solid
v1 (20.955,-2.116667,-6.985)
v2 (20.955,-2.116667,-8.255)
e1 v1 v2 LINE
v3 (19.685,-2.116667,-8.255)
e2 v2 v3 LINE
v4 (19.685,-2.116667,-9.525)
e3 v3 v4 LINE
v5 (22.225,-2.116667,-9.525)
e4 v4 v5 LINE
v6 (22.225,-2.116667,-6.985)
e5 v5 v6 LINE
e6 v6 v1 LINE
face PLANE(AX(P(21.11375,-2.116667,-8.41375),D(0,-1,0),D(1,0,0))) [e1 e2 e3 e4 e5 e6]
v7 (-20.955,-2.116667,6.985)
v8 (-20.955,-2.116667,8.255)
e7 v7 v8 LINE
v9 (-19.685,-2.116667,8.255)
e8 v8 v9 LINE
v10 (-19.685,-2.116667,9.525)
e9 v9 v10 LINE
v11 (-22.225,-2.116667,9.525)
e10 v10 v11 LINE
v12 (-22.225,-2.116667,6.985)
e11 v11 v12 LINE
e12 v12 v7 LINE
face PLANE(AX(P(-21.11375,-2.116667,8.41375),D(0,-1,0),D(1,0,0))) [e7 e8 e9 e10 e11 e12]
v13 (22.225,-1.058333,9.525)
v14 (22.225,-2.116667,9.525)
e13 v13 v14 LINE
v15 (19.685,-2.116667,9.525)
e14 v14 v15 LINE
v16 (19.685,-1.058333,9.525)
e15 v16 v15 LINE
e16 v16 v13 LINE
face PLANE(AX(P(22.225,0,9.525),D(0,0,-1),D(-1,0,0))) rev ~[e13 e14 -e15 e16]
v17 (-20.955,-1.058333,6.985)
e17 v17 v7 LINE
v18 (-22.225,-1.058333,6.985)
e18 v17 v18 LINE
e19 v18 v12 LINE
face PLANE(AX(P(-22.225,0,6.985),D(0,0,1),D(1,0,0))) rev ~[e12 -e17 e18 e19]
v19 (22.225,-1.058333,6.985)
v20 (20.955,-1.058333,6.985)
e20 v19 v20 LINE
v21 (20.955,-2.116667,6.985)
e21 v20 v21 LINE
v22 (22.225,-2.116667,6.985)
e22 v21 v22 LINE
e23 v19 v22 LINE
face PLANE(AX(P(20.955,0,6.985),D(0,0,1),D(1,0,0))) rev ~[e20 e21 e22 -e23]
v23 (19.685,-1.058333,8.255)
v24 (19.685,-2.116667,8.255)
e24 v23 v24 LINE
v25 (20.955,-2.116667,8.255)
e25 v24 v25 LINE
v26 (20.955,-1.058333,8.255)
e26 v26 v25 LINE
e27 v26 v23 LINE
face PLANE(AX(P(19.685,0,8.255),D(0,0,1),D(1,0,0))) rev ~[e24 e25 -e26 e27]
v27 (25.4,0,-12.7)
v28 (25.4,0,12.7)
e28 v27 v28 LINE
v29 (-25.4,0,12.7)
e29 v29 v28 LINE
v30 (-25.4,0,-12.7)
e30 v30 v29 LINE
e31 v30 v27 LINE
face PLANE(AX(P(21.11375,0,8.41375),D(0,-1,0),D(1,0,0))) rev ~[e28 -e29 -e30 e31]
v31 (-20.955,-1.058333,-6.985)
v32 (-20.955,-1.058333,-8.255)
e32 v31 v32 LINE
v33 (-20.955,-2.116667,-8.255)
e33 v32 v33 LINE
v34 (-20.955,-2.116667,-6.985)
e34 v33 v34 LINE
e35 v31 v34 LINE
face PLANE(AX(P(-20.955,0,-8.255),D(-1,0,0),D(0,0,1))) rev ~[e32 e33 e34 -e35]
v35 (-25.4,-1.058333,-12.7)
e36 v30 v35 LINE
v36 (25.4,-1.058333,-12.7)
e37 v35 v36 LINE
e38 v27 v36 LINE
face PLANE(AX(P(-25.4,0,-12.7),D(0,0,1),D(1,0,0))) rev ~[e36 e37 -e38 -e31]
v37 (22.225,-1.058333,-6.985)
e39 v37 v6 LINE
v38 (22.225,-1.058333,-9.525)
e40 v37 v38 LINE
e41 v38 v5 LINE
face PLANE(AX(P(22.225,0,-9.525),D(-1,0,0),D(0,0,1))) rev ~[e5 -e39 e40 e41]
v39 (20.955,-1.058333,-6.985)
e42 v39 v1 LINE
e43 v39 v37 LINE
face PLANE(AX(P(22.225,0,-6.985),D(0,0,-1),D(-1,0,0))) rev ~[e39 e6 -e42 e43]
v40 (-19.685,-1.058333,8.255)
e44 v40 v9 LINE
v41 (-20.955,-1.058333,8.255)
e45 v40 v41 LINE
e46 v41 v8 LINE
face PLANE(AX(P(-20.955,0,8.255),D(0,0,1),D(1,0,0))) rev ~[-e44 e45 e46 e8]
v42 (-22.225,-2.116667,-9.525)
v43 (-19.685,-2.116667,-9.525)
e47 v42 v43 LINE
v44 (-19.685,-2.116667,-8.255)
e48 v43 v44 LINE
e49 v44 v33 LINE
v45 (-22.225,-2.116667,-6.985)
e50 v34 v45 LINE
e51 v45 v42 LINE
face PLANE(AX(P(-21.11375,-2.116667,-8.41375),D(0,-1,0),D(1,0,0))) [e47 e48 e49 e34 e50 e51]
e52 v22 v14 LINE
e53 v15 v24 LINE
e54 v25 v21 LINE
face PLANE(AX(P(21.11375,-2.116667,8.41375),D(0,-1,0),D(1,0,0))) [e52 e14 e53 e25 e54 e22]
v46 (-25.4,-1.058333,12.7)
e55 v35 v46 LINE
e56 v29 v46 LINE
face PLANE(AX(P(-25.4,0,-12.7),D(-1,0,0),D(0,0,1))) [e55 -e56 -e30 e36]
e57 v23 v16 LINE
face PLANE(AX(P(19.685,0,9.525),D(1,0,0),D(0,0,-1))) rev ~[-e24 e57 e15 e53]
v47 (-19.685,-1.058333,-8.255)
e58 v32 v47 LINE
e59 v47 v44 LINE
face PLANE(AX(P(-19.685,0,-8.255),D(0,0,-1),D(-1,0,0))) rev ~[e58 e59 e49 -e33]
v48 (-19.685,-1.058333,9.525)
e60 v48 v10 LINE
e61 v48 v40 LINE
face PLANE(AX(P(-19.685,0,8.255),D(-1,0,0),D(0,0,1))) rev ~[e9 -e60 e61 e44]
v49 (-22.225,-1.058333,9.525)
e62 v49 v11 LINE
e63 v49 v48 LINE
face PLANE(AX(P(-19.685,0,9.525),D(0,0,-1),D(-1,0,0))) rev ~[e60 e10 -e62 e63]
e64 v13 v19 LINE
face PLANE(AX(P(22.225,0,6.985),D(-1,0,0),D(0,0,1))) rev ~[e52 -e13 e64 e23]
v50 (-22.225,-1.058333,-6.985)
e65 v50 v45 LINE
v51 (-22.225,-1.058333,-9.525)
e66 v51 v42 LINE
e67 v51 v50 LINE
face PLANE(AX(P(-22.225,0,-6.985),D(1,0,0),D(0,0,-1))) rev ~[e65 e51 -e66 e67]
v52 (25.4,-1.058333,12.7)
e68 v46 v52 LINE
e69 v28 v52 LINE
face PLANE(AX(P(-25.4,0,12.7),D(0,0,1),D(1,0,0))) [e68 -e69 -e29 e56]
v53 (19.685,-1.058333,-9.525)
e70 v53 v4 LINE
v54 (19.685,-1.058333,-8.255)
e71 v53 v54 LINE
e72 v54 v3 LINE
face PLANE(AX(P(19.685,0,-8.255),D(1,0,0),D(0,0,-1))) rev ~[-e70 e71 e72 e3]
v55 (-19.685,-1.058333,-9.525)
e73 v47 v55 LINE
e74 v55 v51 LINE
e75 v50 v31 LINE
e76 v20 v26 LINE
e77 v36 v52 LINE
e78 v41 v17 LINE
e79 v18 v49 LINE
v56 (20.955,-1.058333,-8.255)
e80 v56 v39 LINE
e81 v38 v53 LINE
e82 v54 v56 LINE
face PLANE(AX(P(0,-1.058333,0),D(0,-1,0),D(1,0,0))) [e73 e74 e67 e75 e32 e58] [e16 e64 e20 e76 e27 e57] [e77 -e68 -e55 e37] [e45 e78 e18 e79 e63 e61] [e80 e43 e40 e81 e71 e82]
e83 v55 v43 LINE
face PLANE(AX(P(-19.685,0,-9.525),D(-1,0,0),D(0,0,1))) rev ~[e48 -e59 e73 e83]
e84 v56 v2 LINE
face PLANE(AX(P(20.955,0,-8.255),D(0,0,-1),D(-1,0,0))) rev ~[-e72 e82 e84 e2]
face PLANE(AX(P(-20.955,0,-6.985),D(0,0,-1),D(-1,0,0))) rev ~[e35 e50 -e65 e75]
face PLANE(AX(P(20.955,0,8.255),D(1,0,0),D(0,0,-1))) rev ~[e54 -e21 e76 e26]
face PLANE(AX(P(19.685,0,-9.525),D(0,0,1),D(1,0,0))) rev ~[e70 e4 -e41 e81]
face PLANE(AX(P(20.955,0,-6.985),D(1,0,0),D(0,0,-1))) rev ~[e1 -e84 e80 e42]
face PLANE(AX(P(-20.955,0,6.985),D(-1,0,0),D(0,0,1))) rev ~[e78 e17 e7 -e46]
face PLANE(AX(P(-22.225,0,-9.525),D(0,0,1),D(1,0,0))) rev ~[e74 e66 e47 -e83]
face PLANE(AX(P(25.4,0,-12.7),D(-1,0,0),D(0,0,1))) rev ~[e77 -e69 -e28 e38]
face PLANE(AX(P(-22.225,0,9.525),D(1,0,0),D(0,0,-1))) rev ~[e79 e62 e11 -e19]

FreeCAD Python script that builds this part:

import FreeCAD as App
import Part
import Sketcher
from FreeCAD import Vector
Q = App.Units.Quantity

doc = App.newDocument("Part")
params = doc.addObject("Spreadsheet::Sheet", "Params")
for row, (alias, value) in enumerate([
    ("sketch1_width", "2 in"),
    ("sketch1_height", "1 in"),
    ("pad1_length", "1.058333 mm"),
    ("sketch2_width", "0.1 in"),
    ("pad2_length", "2.116667 mm"),
], start=1):
    params.set(f"A{row}", alias)
    params.set(f"B{row}", "=" + value)
    params.setAlias(f"B{row}", alias)

body = doc.addObject("PartDesign::Body", "Body")

sketch1 = body.newObject("Sketcher::SketchObject", "Sketch")
sketch1.AttachmentSupport = (doc.getObject("XZ_Plane"), [""])
sketch1.MapMode = "FlatFace"
sketch1.addGeometry([
    Part.LineSegment(Vector(-25.4, 12.7, 0), Vector(-25.4, -12.7, 0)),
    Part.LineSegment(Vector(-25.4, -12.7, 0), Vector(25.4, -12.7, 0)),
    Part.LineSegment(Vector(25.4, -12.7, 0), Vector(25.4, 12.7, 0)),
    Part.LineSegment(Vector(25.4, 12.7, 0), Vector(-25.4, 12.7, 0)),
], False)
sketch1.addConstraint([
    Sketcher.Constraint("Coincident", 0, 2, 1, 1),
    Sketcher.Constraint("Coincident", 1, 2, 2, 1),
    Sketcher.Constraint("Coincident", 2, 2, 3, 1),
    Sketcher.Constraint("Coincident", 3, 2, 0, 1),
    Sketcher.Constraint("Vertical", 0),
    Sketcher.Constraint("Horizontal", 1),
    Sketcher.Constraint("Vertical", 2),
    Sketcher.Constraint("Horizontal", 3),
    Sketcher.Constraint("Symmetric", 0, 2, 2, 2, -1, 1),
    Sketcher.Constraint("DistanceX", 1, 1, 1, 2, Q("2 in")),
    Sketcher.Constraint("DistanceY", 0, 2, 0, 1, Q("1 in")),
])
sketch1.setExpression("Constraints[9]", "Params.sketch1_width")
sketch1.setExpression("Constraints[10]", "Params.sketch1_height")
pad1 = body.newObject("PartDesign::Pad", "Pad")
pad1.Profile = sketch1
pad1.setExpression("Length", "Params.pad1_length")

sketch2 = body.newObject("Sketcher::SketchObject", "Sketch001")
sketch2.AttachmentSupport = (doc.getObject("XZ_Plane"), [""])
sketch2.MapMode = "FlatFace"
sketch2.addGeometry([
    Part.LineSegment(Vector(22.225, 6.985, 0), Vector(22.225, 9.525, 0)),
    Part.LineSegment(Vector(22.225, 9.525, 0), Vector(19.685, 9.525, 0)),
    Part.LineSegment(Vector(19.685, 9.525, 0), Vector(19.685, 8.255, 0)),
    Part.LineSegment(Vector(19.685, 8.255, 0), Vector(20.955, 8.255, 0)),
    Part.LineSegment(Vector(20.955, 8.255, 0), Vector(20.955, 6.985, 0)),
    Part.LineSegment(Vector(20.955, 6.985, 0), Vector(22.225, 6.985, 0)),
    Part.LineSegment(Vector(19.685, -9.525, 0), Vector(22.225, -9.525, 0)),
    Part.LineSegment(Vector(22.225, -9.525, 0), Vector(22.225, -6.985, 0)),
    Part.LineSegment(Vector(22.225, -6.985, 0), Vector(20.955, -6.985, 0)),
    Part.LineSegment(Vector(20.955, -6.985, 0), Vector(20.955, -8.255, 0)),
    Part.LineSegment(Vector(20.955, -8.255, 0), Vector(19.685, -8.255, 0)),
    Part.LineSegment(Vector(19.685, -8.255, 0), Vector(19.685, -9.525, 0)),
    Part.LineSegment(Vector(-19.685, 9.525, 0), Vector(-22.225, 9.525, 0)),
    Part.LineSegment(Vector(-22.225, 9.525, 0), Vector(-22.225, 6.985, 0)),
    Part.LineSegment(Vector(-22.225, 6.985, 0), Vector(-20.955, 6.985, 0)),
    Part.LineSegment(Vector(-20.955, 6.985, 0), Vector(-20.955, 8.255, 0)),
    Part.LineSegment(Vector(-20.955, 8.255, 0), Vector(-19.685, 8.255, 0)),
    Part.LineSegment(Vector(-19.685, 8.255, 0), Vector(-19.685, 9.525, 0)),
    Part.LineSegment(Vector(-19.685, -9.525, 0), Vector(-19.685, -8.255, 0)),
    Part.LineSegment(Vector(-19.685, -8.255, 0), Vector(-20.955, -8.255, 0)),
    Part.LineSegment(Vector(-20.955, -8.255, 0), Vector(-20.955, -6.985, 0)),
    Part.LineSegment(Vector(-20.955, -6.985, 0), Vector(-22.225, -6.985, 0)),
    Part.LineSegment(Vector(-22.225, -6.985, 0), Vector(-22.225, -9.525, 0)),
    Part.LineSegment(Vector(-22.225, -9.525, 0), Vector(-19.685, -9.525, 0)),
], False)
sketch2.addConstraint([
    Sketcher.Constraint("Coincident", 0, 2, 1, 1),
    Sketcher.Constraint("Coincident", 1, 2, 2, 1),
    Sketcher.Constraint("Coincident", 2, 2, 3, 1),
    Sketcher.Constraint("Coincident", 3, 2, 4, 1),
    Sketcher.Constraint("Coincident", 4, 2, 5, 1),
    Sketcher.Constraint("Coincident", 5, 2, 0, 1),
    Sketcher.Constraint("Coincident", 6, 2, 7, 1),
    Sketcher.Constraint("Coincident", 7, 2, 8, 1),
    Sketcher.Constraint("Coincident", 8, 2, 9, 1),
    Sketcher.Constraint("Coincident", 9, 2, 10, 1),
    Sketcher.Constraint("Coincident", 10, 2, 11, 1),
    Sketcher.Constraint("Coincident", 11, 2, 6, 1),
    Sketcher.Constraint("Coincident", 12, 2, 13, 1),
    Sketcher.Constraint("Coincident", 13, 2, 14, 1),
    Sketcher.Constraint("Coincident", 14, 2, 15, 1),
    Sketcher.Constraint("Coincident", 15, 2, 16, 1),
    Sketcher.Constraint("Coincident", 16, 2, 17, 1),
    Sketcher.Constraint("Coincident", 17, 2, 12, 1),
    Sketcher.Constraint("Coincident", 18, 2, 19, 1),
    Sketcher.Constraint("Coincident", 19, 2, 20, 1),
    Sketcher.Constraint("Coincident", 20, 2, 21, 1),
    Sketcher.Constraint("Coincident", 21, 2, 22, 1),
    Sketcher.Constraint("Coincident", 22, 2, 23, 1),
    Sketcher.Constraint("Coincident", 23, 2, 18, 1),
    Sketcher.Constraint("Vertical", 0),
    Sketcher.Constraint("Horizontal", 1),
    Sketcher.Constraint("Vertical", 2),
    Sketcher.Constraint("Horizontal", 3),
    Sketcher.Constraint("Vertical", 4),
    Sketcher.Constraint("Horizontal", 5),
    Sketcher.Constraint("Horizontal", 6),
    Sketcher.Constraint("Vertical", 7),
    Sketcher.Constraint("Horizontal", 8),
    Sketcher.Constraint("Vertical", 9),
    Sketcher.Constraint("Horizontal", 10),
    Sketcher.Constraint("Vertical", 11),
    Sketcher.Constraint("Horizontal", 12),
    Sketcher.Constraint("Vertical", 13),
    Sketcher.Constraint("Horizontal", 14),
    Sketcher.Constraint("Vertical", 15),
    Sketcher.Constraint("Horizontal", 16),
    Sketcher.Constraint("Vertical", 17),
    Sketcher.Constraint("Vertical", 18),
    Sketcher.Constraint("Horizontal", 19),
    Sketcher.Constraint("Vertical", 20),
    Sketcher.Constraint("Horizontal", 21),
    Sketcher.Constraint("Vertical", 22),
    Sketcher.Constraint("Horizontal", 23),
    Sketcher.Constraint("Symmetric", 6, 2, 12, 2, -1, 1),
    Sketcher.Constraint("Symmetric", 8, 2, 14, 2, -1, 1),
    Sketcher.Constraint("Symmetric", 10, 2, 16, 2, -1, 1),
    Sketcher.Constraint("Symmetric", 2, 2, 18, 2, -1, 1),
    Sketcher.Constraint("Symmetric", 4, 2, 20, 2, -1, 1),
    Sketcher.Constraint("Symmetric", 0, 2, 22, 2, -1, 1),
    Sketcher.Constraint("Symmetric", 0, 2, 12, 2, -2),
    Sketcher.Constraint("Symmetric", 4, 2, 14, 2, -2),
    Sketcher.Constraint("Symmetric", 2, 2, 16, 2, -2),
    Sketcher.Constraint("Equal", 3, 5),
    Sketcher.Constraint("Equal", 23, 0),
    Sketcher.Constraint("Equal", 21, 2),
    Sketcher.Constraint("DistanceX", 1, 2, 1, 1, Q("0.1 in")),
    Sketcher.Constraint("DistanceY", 6, 2, 3, 2, Q("0.7 in")),
    Sketcher.Constraint("DistanceX", 12, 2, 3, 2, Q("1.7 in")),
])
sketch2.setExpression("Constraints[60]", "Params.sketch2_width")
pad2 = body.newObject("PartDesign::Pad", "Pad001")
pad2.Profile = sketch2
pad2.setExpression("Length", "Params.pad2_length")

doc.recompute()
